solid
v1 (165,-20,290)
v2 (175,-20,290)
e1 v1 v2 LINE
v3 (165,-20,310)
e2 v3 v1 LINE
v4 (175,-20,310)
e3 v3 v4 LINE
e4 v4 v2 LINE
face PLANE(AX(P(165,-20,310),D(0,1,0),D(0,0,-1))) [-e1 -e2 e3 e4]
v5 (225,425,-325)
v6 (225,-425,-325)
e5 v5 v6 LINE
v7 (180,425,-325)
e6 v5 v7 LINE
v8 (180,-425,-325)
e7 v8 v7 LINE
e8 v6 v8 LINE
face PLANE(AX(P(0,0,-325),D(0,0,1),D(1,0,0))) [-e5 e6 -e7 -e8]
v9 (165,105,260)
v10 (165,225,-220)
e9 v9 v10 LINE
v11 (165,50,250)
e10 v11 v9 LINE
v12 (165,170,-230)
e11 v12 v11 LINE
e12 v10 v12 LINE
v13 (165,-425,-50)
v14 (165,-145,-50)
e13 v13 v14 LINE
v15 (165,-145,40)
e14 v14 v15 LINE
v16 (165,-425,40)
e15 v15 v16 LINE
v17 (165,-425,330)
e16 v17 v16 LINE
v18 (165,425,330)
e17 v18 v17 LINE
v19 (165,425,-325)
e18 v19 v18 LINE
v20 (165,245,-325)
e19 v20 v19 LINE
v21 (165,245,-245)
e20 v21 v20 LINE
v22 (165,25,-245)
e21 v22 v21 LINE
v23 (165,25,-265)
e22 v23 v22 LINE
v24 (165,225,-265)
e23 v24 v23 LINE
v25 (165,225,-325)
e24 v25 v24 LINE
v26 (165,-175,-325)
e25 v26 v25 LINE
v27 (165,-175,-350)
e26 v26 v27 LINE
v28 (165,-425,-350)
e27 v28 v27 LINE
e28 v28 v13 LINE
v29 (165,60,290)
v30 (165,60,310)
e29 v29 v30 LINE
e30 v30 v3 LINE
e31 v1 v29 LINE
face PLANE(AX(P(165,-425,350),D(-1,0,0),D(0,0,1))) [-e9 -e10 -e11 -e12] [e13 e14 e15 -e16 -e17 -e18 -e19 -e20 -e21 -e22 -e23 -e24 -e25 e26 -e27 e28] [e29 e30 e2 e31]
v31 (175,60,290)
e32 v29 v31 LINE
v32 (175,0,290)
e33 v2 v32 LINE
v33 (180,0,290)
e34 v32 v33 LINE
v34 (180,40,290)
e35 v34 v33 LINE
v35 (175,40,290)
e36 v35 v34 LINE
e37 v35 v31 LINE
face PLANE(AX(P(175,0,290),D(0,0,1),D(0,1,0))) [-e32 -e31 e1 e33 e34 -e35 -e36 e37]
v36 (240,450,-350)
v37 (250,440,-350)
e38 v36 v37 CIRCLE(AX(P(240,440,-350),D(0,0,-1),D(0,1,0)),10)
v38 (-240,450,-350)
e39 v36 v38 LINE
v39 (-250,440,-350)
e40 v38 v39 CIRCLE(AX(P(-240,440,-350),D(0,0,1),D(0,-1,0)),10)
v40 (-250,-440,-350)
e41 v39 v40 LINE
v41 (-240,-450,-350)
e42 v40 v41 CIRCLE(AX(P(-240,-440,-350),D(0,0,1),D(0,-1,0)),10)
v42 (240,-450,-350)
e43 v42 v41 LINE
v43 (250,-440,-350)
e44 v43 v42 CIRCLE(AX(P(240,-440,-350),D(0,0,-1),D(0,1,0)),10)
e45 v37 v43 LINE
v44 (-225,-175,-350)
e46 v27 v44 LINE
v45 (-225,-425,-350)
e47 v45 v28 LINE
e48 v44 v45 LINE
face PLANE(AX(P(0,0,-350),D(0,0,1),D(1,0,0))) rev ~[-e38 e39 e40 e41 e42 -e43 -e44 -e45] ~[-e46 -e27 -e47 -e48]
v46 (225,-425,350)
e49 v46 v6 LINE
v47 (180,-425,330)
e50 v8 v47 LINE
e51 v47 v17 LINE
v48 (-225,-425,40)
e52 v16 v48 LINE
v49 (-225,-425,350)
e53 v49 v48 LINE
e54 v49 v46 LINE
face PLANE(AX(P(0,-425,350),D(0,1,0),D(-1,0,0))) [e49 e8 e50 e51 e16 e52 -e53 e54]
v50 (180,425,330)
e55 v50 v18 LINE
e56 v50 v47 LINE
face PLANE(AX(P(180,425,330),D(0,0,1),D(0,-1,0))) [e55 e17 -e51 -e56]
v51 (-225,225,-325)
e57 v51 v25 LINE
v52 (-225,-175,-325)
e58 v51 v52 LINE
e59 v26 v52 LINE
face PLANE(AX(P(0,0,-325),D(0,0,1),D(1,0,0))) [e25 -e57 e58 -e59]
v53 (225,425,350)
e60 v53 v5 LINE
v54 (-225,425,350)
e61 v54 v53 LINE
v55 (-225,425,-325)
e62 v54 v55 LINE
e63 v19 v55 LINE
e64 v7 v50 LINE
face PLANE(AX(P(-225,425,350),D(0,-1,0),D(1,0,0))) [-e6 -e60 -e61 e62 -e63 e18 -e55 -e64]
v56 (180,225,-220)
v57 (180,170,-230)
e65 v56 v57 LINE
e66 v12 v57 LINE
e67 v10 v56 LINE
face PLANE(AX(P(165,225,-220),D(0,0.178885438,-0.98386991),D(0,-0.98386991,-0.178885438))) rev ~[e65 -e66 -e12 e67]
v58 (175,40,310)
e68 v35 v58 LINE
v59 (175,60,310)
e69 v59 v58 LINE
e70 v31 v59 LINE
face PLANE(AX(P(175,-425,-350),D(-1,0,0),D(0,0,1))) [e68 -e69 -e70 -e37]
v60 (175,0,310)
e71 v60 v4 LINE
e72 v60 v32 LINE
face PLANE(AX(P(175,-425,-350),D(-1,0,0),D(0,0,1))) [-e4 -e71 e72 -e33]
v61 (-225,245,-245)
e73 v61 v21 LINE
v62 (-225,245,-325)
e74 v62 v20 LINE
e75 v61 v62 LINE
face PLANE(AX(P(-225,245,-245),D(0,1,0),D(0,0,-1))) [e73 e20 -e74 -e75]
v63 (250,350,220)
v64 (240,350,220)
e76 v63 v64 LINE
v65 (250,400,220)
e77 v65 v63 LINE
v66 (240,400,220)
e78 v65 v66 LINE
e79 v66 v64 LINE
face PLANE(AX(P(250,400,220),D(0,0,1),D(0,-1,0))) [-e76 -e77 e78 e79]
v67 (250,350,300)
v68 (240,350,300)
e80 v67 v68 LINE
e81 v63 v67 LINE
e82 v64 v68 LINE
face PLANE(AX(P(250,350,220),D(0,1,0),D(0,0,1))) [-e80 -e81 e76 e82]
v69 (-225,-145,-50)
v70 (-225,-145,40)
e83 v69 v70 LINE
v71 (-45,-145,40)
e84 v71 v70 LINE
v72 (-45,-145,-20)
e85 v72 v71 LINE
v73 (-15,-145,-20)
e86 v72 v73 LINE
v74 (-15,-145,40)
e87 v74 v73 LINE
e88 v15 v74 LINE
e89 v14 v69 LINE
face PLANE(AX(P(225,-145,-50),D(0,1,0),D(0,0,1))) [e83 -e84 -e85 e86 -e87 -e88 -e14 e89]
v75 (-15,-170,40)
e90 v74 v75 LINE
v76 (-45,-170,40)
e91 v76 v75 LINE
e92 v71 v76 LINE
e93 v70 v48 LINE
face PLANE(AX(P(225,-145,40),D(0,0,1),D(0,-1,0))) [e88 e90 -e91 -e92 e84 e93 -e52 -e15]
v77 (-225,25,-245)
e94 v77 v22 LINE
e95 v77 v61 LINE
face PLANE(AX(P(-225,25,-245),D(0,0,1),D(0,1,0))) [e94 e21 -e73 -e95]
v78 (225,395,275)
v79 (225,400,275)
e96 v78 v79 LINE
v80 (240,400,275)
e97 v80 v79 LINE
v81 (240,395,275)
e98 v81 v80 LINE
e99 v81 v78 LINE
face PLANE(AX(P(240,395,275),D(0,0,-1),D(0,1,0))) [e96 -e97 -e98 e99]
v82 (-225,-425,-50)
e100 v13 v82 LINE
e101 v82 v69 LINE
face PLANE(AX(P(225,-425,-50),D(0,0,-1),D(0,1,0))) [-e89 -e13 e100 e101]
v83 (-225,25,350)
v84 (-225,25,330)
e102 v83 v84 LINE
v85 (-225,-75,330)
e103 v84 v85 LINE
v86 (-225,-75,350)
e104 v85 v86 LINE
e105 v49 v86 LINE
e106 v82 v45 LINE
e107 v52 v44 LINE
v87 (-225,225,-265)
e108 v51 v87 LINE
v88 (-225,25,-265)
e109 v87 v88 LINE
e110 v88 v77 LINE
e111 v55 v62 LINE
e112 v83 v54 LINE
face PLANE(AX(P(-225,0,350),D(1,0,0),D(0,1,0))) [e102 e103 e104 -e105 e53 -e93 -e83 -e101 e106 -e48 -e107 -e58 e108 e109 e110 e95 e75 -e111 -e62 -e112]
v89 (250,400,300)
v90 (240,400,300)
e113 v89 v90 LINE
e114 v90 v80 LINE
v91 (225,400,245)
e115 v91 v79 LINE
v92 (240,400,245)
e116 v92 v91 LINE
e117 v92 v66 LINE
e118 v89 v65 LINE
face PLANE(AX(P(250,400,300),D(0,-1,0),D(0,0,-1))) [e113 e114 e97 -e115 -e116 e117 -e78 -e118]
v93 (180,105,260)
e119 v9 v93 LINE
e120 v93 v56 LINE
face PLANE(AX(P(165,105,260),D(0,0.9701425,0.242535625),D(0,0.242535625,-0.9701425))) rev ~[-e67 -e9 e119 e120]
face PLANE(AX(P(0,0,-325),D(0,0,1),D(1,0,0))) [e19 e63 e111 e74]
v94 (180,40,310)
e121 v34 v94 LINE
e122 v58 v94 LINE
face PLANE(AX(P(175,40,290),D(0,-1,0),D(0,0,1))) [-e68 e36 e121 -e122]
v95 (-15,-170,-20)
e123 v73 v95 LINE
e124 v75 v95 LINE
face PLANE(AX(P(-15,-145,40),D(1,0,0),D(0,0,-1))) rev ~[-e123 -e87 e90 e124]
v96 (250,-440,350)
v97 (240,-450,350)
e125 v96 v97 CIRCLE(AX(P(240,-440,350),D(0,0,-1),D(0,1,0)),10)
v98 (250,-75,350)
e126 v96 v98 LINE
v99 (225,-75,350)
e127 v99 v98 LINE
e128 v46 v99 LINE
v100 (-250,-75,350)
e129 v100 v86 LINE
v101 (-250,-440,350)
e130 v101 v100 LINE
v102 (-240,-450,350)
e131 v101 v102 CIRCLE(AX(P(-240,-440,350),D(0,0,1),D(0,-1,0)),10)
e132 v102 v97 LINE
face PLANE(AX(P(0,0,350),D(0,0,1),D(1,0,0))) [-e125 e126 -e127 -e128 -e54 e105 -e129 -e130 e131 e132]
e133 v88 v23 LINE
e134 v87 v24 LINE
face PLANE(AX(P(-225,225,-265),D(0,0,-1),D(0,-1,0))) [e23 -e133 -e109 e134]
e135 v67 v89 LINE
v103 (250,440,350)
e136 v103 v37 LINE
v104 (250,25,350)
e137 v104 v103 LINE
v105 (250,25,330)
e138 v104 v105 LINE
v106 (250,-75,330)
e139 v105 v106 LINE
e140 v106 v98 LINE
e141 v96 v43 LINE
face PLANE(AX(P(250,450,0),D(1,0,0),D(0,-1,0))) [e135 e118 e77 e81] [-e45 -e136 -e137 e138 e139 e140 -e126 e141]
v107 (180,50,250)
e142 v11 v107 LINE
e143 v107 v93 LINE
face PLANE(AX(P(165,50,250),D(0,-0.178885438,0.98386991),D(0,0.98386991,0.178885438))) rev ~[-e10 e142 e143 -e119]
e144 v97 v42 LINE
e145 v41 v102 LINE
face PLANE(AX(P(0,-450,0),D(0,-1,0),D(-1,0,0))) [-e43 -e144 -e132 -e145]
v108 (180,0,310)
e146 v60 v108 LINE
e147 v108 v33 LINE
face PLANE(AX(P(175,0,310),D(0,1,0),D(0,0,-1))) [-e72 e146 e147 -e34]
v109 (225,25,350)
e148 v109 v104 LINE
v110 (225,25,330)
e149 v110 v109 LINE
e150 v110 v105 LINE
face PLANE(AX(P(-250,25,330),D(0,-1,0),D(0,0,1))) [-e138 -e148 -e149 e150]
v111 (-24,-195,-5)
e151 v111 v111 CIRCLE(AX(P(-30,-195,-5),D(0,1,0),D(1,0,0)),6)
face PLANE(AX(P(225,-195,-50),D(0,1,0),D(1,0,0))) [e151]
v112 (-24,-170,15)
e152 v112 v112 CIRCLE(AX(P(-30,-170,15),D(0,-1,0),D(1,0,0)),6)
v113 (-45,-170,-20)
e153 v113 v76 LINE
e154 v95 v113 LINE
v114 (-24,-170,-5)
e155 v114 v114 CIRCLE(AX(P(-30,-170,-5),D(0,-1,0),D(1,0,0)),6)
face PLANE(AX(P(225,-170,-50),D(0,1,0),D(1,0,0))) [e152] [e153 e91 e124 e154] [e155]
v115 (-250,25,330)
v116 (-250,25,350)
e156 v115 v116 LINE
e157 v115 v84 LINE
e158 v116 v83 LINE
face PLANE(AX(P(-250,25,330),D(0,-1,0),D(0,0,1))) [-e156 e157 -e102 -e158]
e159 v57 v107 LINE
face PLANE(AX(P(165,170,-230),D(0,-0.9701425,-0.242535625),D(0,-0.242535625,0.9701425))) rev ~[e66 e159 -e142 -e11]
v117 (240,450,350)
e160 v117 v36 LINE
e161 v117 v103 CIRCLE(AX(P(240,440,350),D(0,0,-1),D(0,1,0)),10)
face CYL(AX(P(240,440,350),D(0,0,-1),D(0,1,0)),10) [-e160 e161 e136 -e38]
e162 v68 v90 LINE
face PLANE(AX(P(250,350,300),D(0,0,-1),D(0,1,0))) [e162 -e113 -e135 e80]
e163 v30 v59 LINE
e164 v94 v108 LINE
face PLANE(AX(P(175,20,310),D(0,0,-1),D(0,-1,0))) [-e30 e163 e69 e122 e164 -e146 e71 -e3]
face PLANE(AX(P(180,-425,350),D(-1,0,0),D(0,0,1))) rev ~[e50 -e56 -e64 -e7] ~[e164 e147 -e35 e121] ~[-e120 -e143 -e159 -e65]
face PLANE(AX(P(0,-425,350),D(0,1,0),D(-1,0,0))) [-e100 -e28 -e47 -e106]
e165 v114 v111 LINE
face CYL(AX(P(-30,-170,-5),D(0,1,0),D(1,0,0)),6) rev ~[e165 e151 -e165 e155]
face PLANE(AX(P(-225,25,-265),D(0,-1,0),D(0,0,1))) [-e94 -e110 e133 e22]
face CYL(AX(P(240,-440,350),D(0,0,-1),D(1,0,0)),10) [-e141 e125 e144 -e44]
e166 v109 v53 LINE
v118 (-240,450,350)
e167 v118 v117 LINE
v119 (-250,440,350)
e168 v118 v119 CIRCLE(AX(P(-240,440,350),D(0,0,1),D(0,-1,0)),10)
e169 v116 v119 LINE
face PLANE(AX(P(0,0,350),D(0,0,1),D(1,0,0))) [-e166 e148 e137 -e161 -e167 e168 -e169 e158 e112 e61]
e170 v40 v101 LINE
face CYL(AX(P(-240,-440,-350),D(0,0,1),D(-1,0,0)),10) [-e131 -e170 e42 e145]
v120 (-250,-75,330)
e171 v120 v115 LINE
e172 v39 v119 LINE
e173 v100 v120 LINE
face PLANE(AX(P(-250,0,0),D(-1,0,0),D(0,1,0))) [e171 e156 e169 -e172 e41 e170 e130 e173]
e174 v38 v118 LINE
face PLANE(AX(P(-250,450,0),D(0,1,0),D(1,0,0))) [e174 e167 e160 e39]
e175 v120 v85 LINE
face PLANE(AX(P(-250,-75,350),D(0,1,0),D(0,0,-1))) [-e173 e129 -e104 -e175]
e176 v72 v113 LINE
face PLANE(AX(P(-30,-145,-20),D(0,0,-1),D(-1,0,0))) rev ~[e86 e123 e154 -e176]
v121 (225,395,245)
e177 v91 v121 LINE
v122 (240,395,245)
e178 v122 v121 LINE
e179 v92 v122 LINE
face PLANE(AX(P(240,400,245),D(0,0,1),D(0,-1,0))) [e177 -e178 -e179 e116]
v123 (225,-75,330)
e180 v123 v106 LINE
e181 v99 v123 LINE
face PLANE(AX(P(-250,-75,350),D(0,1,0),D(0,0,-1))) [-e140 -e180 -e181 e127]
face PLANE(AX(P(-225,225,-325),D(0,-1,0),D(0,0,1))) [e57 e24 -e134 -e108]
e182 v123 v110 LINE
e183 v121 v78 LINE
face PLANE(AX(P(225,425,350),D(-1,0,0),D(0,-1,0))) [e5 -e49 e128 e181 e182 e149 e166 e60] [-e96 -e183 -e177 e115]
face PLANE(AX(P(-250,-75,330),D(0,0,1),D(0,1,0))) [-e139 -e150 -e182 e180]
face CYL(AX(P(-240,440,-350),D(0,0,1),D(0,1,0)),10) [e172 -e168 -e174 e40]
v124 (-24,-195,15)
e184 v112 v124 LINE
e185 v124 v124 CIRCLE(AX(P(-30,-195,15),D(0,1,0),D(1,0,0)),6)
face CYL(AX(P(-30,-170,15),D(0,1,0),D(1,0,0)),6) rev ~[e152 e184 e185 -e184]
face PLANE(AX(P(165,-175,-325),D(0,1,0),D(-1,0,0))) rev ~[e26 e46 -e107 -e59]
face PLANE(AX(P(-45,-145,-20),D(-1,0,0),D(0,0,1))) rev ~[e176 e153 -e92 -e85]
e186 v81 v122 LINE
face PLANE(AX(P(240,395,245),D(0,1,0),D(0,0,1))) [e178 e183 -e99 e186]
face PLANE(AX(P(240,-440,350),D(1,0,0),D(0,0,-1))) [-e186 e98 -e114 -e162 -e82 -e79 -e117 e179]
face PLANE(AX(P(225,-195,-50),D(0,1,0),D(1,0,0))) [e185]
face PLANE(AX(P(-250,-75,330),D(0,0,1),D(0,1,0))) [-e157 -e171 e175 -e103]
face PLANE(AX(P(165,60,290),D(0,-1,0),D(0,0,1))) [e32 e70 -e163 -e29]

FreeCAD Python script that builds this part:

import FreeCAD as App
import Part
import Sketcher
from FreeCAD import Vector


def edges_at(feature, points):
    """Names of the edges that pass closest to the given points."""
    edges = feature.Shape.Edges
    near = lambda p: min(range(len(edges)), key=lambda i: edges[i].distToShape(Part.Vertex(*p))[0])
    return sorted({f"Edge{near(p) + 1}" for p in points})

doc = App.newDocument("Part")
body = doc.addObject("PartDesign::Body", "Body")

# Sketch on XY plane
sketch1 = body.newObject("Sketcher::SketchObject", "Sketch")
sketch1.AttachmentSupport = (doc.getObject("XY_Plane"), [""])
sketch1.MapMode = "FlatFace"
sketch1.addGeometry([
    Part.LineSegment(Vector(-250, 450, 0), Vector(-250, -450, 0)),
    Part.LineSegment(Vector(-250, -450, 0), Vector(250, -450, 0)),
    Part.LineSegment(Vector(250, -450, 0), Vector(250, 450, 0)),
    Part.LineSegment(Vector(250, 450, 0), Vector(-250, 450, 0)),
], False)
sketch1.addConstraint([
    Sketcher.Constraint("Coincident", 0, 2, 1, 1),
    Sketcher.Constraint("Coincident", 1, 2, 2, 1),
    Sketcher.Constraint("Coincident", 2, 2, 3, 1),
    Sketcher.Constraint("Coincident", 3, 2, 0, 1),
    Sketcher.Constraint("Vertical", 0),
    Sketcher.Constraint("Horizontal", 1),
    Sketcher.Constraint("Vertical", 2),
    Sketcher.Constraint("Horizontal", 3),
    Sketcher.Constraint("Symmetric", 0, 2, 2, 2, -1, 1),
    Sketcher.Constraint("DistanceX", 1, 1, 1, 2, 500.0),
    Sketcher.Constraint("DistanceY", 0, 2, 0, 1, 900.0),
])
pad1 = body.newObject("PartDesign::Pad", "Pad")
pad1.Profile = sketch1
pad1.Length = 700
pad1.Midplane = True

# Sketch on XY plane
sketch2 = body.newObject("Sketcher::SketchObject", "Sketch001")
sketch2.AttachmentSupport = (doc.getObject("XY_Plane"), [""])
sketch2.MapMode = "FlatFace"
sketch2.AttachmentOffset = App.Placement(Vector(0, 0, 350), App.Rotation())
sketch2.addGeometry([
    Part.LineSegment(Vector(-225, 425, 0), Vector(-225, -425, 0)),
    Part.LineSegment(Vector(-225, -425, 0), Vector(225, -425, 0)),
    Part.LineSegment(Vector(225, -425, 0), Vector(225, 425, 0)),
    Part.LineSegment(Vector(225, 425, 0), Vector(-225, 425, 0)),
], False)
sketch2.addConstraint([
    Sketcher.Constraint("Coincident", 0, 2, 1, 1),
    Sketcher.Constraint("Coincident", 1, 2, 2, 1),
    Sketcher.Constraint("Coincident", 2, 2, 3, 1),
    Sketcher.Constraint("Coincident", 3, 2, 0, 1),
    Sketcher.Constraint("Vertical", 0),
    Sketcher.Constraint("Horizontal", 1),
    Sketcher.Constraint("Vertical", 2),
    Sketcher.Constraint("Horizontal", 3),
    Sketcher.Constraint("Symmetric", 0, 2, 2, 2, -1, 1),
    Sketcher.Constraint("DistanceX", 1, 1, 1, 2, 450.0),
    Sketcher.Constraint("DistanceY", 0, 2, 0, 1, 850.0),
])
pocket1 = body.newObject("PartDesign::Pocket", "Pocket")
pocket1.Profile = sketch2
pocket1.Length = 675

# Sketch on XY plane
sketch3 = body.newObject("Sketcher::SketchObject", "Sketch002")
sketch3.AttachmentSupport = (doc.getObject("XY_Plane"), [""])
sketch3.MapMode = "FlatFace"
sketch3.AttachmentOffset = App.Placement(Vector(0, 0, -325), App.Rotation())
sketch3.addGeometry([
    Part.LineSegment(Vector(-225, -175, 0), Vector(-225, -425, 0)),
    Part.LineSegment(Vector(-225, -425, 0), Vector(165, -425, 0)),
    Part.LineSegment(Vector(165, -425, 0), Vector(165, -175, 0)),
    Part.LineSegment(Vector(165, -175, 0), Vector(-225, -175, 0)),
], False)
sketch3.addConstraint([
    Sketcher.Constraint("Coincident", 0, 2, 1, 1),
    Sketcher.Constraint("Coincident", 1, 2, 2, 1),
    Sketcher.Constraint("Coincident", 2, 2, 3, 1),
    Sketcher.Constraint("Coincident", 3, 2, 0, 1),
    Sketcher.Constraint("Vertical", 0),
    Sketcher.Constraint("Horizontal", 1),
    Sketcher.Constraint("Vertical", 2),
    Sketcher.Constraint("Horizontal", 3),
    Sketcher.Constraint("DistanceX", 1, 1, 1, 2, 390.0),
    Sketcher.Constraint("DistanceY", 0, 2, 0, 1, 250.0),
    Sketcher.Constraint("DistanceX", 0, 2, -1, 1, 225.0),
    Sketcher.Constraint("DistanceY", 0, 2, -1, 1, 425.0),
])
pocket2 = body.newObject("PartDesign::Pocket", "Pocket001")
pocket2.Profile = sketch3
pocket2.Type = "ThroughAll"

# Sketch on YZ plane
sketch4 = body.newObject("Sketcher::SketchObject", "Sketch003")
sketch4.AttachmentSupport = (doc.getObject("YZ_Plane"), [""])
sketch4.MapMode = "FlatFace"
sketch4.AttachmentOffset = App.Placement(Vector(0, 0, 225), App.Rotation())
sketch4.addGeometry([
    Part.LineSegment(Vector(-145, 40, 0), Vector(-145, -50, 0)),
    Part.LineSegment(Vector(-145, -50, 0), Vector(-425, -50, 0)),
    Part.LineSegment(Vector(-425, -50, 0), Vector(-425, 40, 0)),
    Part.LineSegment(Vector(-425, 40, 0), Vector(-145, 40, 0)),
], False)
sketch4.addConstraint([
    Sketcher.Constraint("Coincident", 0, 2, 1, 1),
    Sketcher.Constraint("Coincident", 1, 2, 2, 1),
    Sketcher.Constraint("Coincident", 2, 2, 3, 1),
    Sketcher.Constraint("Coincident", 3, 2, 0, 1),
    Sketcher.Constraint("Vertical", 0),
    Sketcher.Constraint("Horizontal", 1),
    Sketcher.Constraint("Vertical", 2),
    Sketcher.Constraint("Horizontal", 3),
    Sketcher.Constraint("DistanceX", 1, 2, 1, 1, 280.0),
    Sketcher.Constraint("DistanceY", 0, 2, 0, 1, 90.0),
    Sketcher.Constraint("DistanceX", 0, 2, -1, 1, 145.0),
    Sketcher.Constraint("DistanceY", 0, 2, -1, 1, 50.0),
])
pad2 = body.newObject("PartDesign::Pad", "Pad001")
pad2.Profile = sketch4
pad2.Length = 450
pad2.Reversed = True

# Sketch on YZ plane
sketch5 = body.newObject("Sketcher::SketchObject", "Sketch004")
sketch5.AttachmentSupport = (doc.getObject("YZ_Plane"), [""])
sketch5.MapMode = "FlatFace"
sketch5.AttachmentOffset = App.Placement(Vector(0, 0, 180), App.Rotation())
sketch5.addGeometry([
    Part.LineSegment(Vector(-425, -325, 0), Vector(-425, 330, 0)),
    Part.LineSegment(Vector(-425, 330, 0), Vector(425, 330, 0)),
    Part.LineSegment(Vector(425, 330, 0), Vector(425, -325, 0)),
    Part.LineSegment(Vector(425, -325, 0), Vector(-425, -325, 0)),
], False)
sketch5.addConstraint([
    Sketcher.Constraint("Coincident", 0, 2, 1, 1),
    Sketcher.Constraint("Coincident", 1, 2, 2, 1),
    Sketcher.Constraint("Coincident", 2, 2, 3, 1),
    Sketcher.Constraint("Coincident", 3, 2, 0, 1),
    Sketcher.Constraint("Vertical", 0),
    Sketcher.Constraint("Horizontal", 1),
    Sketcher.Constraint("Vertical", 2),
    Sketcher.Constraint("Horizontal", 3),
    Sketcher.Constraint("DistanceX", 1, 1, 1, 2, 850.0),
    Sketcher.Constraint("DistanceY", 0, 1, 0, 2, 655.0),
    Sketcher.Constraint("DistanceX", 0, 2, -1, 1, 425.0),
    Sketcher.Constraint("DistanceY", -1, 1, 0, 2, 330.0),
])
pad3 = body.newObject("PartDesign::Pad", "Pad002")
pad3.Profile = sketch5
pad3.Length = 15
pad3.Reversed = True

# Sketch on XY plane
sketch6 = body.newObject("Sketcher::SketchObject", "Sketch005")
sketch6.AttachmentSupport = (doc.getObject("XY_Plane"), [""])
sketch6.MapMode = "FlatFace"
sketch6.AttachmentOffset = App.Placement(Vector(0, 0, 40), App.Rotation())
sketch6.addGeometry([
    Part.LineSegment(Vector(225, -425, 0), Vector(225, -145, 0)),
    Part.LineSegment(Vector(225, -145, 0), Vector(180, -145, 0)),
    Part.LineSegment(Vector(180, -145, 0), Vector(180, -425, 0)),
    Part.LineSegment(Vector(180, -425, 0), Vector(225, -425, 0)),
], False)
sketch6.addConstraint([
    Sketcher.Constraint("Coincident", 0, 2, 1, 1),
    Sketcher.Constraint("Coincident", 1, 2, 2, 1),
    Sketcher.Constraint("Coincident", 2, 2, 3, 1),
    Sketcher.Constraint("Coincident", 3, 2, 0, 1),
    Sketcher.Constraint("Vertical", 0),
    Sketcher.Constraint("Horizontal", 1),
    Sketcher.Constraint("Vertical", 2),
    Sketcher.Constraint("Horizontal", 3),
    Sketcher.Constraint("DistanceX", 1, 2, 1, 1, 45.0),
    Sketcher.Constraint("DistanceY", 0, 1, 0, 2, 280.0),
    Sketcher.Constraint("DistanceX", -1, 1, 0, 2, 225.0),
    Sketcher.Constraint("DistanceY", 0, 2, -1, 1, 145.0),
])
pocket3 = body.newObject("PartDesign::Pocket", "Pocket002")
pocket3.Profile = sketch6
pocket3.Length = 90

# Sketch on XZ plane
sketch7 = body.newObject("Sketcher::SketchObject", "Sketch006")
sketch7.AttachmentSupport = (doc.getObject("XZ_Plane"), [""])
sketch7.MapMode = "FlatFace"
sketch7.AttachmentOffset = App.Placement(Vector(0, 0, 145), App.Rotation())
sketch7.addGeometry([
    Part.LineSegment(Vector(-45, -20, 0), Vector(-45, 40, 0)),
    Part.LineSegment(Vector(-45, 40, 0), Vector(-15, 40, 0)),
    Part.LineSegment(Vector(-15, 40, 0), Vector(-15, -20, 0)),
    Part.LineSegment(Vector(-15, -20, 0), Vector(-45, -20, 0)),
], False)
sketch7.addConstraint([
    Sketcher.Constraint("Coincident", 0, 2, 1, 1),
    Sketcher.Constraint("Coincident", 1, 2, 2, 1),
    Sketcher.Constraint("Coincident", 2, 2, 3, 1),
    Sketcher.Constraint("Coincident", 3, 2, 0, 1),
    Sketcher.Constraint("Vertical", 0),
    Sketcher.Constraint("Horizontal", 1),
    Sketcher.Constraint("Vertical", 2),
    Sketcher.Constraint("Horizontal", 3),
    Sketcher.Constraint("DistanceX", 1, 1, 1, 2, 30.0),
    Sketcher.Constraint("DistanceY", 0, 1, 0, 2, 60.0),
    Sketcher.Constraint("DistanceX", 0, 2, -1, 1, 45.0),
    Sketcher.Constraint("DistanceY", -1, 1, 0, 2, 40.0),
])
pocket4 = body.newObject("PartDesign::Pocket", "Pocket003")
pocket4.Profile = sketch7
pocket4.Length = 25
pocket4.Reversed = True

# Sketch on XZ plane
sketch8 = body.newObject("Sketcher::SketchObject", "Sketch007")
sketch8.AttachmentSupport = (doc.getObject("XZ_Plane"), [""])
sketch8.MapMode = "FlatFace"
sketch8.AttachmentOffset = App.Placement(Vector(0, 0, 170), App.Rotation())
sketch8.addGeometry([
    Part.Circle(Vector(-30, -5, 0), Vector(0, 0, 1), 6),
    Part.Circle(Vector(-30, 15, 0), Vector(0, 0, 1), 6),
], False)
sketch8.addConstraint([
    Sketcher.Constraint("Equal", 0, 1),
    Sketcher.Constraint("Vertical", 0, 3, 1, 3),
    Sketcher.Constraint("Diameter", 0, 12.0),
    Sketcher.Constraint("DistanceY", 0, 3, 1, 3, 20.0),
    Sketcher.Constraint("DistanceX", 0, 3, -1, 1, 30.0),
    Sketcher.Constraint("DistanceY", 0, 3, -1, 1, 5.0),
])
pocket5 = body.newObject("PartDesign::Pocket", "Pocket004")
pocket5.Profile = sketch8
pocket5.Length = 25
pocket5.Reversed = True
doc.recompute()

fillet = body.newObject("PartDesign::Fillet", "Fillet")
fillet.Base = (pocket5, edges_at(pocket5, [
    (-250, 450, 0),
    (250, 450, 0),
    (-250, -450, 0),
    (250, -450, 0),
]))
fillet.Radius = 10

# Sketch on YZ plane
sketch9 = body.newObject("Sketcher::SketchObject", "Sketch008")
sketch9.AttachmentSupport = (doc.getObject("YZ_Plane"), [""])
sketch9.MapMode = "FlatFace"
sketch9.AttachmentOffset = App.Placement(Vector(0, 0, 165), App.Rotation())
sketch9.addGeometry([
    Part.LineSegment(Vector(60, 310, 0), Vector(60, 290, 0)),
    Part.LineSegment(Vector(60, 290, 0), Vector(-20, 290, 0)),
    Part.LineSegment(Vector(-20, 290, 0), Vector(-20, 310, 0)),
    Part.LineSegment(Vector(-20, 310, 0), Vector(60, 310, 0)),
], False)
sketch9.addConstraint([
    Sketcher.Constraint("Coincident", 0, 2, 1, 1),
    Sketcher.Constraint("Coincident", 1, 2, 2, 1),
    Sketcher.Constraint("Coincident", 2, 2, 3, 1),
    Sketcher.Constraint("Coincident", 3, 2, 0, 1),
    Sketcher.Constraint("Vertical", 0),
    Sketcher.Constraint("Horizontal", 1),
    Sketcher.Constraint("Vertical", 2),
    Sketcher.Constraint("Horizontal", 3),
    Sketcher.Constraint("DistanceX", 1, 2, 1, 1, 80.0),
    Sketcher.Constraint("DistanceY", 0, 2, 0, 1, 20.0),
    Sketcher.Constraint("DistanceX", 1, 2, -1, 1, 20.0),
    Sketcher.Constraint("DistanceY", -1, 1, 0, 2, 290.0),
])
pocket6 = body.newObject("PartDesign::Pocket", "Pocket005")
pocket6.Profile = sketch9
pocket6.Length = 10
pocket6.Reversed = True

# Sketch on YZ plane
sketch10 = body.newObject("Sketcher::SketchObject", "Sketch009")
sketch10.AttachmentSupport = (doc.getObject("YZ_Plane"), [""])
sketch10.MapMode = "FlatFace"
sketch10.AttachmentOffset = App.Placement(Vector(0, 0, 175), App.Rotation())
sketch10.addGeometry([
    Part.LineSegment(Vector(0, 290, 0), Vector(0, 310, 0)),
    Part.LineSegment(Vector(0, 310, 0), Vector(40, 310, 0)),
    Part.LineSegment(Vector(40, 310, 0), Vector(40, 290, 0)),
    Part.LineSegment(Vector(40, 290, 0), Vector(0, 290, 0)),
], False)
sketch10.addConstraint([
    Sketcher.Constraint("Coincident", 0, 2, 1, 1),
    Sketcher.Constraint("Coincident", 1, 2, 2, 1),
    Sketcher.Constraint("Coincident", 2, 2, 3, 1),
    Sketcher.Constraint("Coincident", 3, 2, 0, 1),
    Sketcher.Constraint("Vertical", 0),
    Sketcher.Constraint("Horizontal", 1),
    Sketcher.Constraint("Vertical", 2),
    Sketcher.Constraint("Horizontal", 3),
    Sketcher.Constraint("PointOnObject", 0, 2, -2),
    Sketcher.Constraint("DistanceX", 1, 1, 1, 2, 40.0),
    Sketcher.Constraint("DistanceY", 0, 1, 0, 2, 20.0),
    Sketcher.Constraint("DistanceY", -1, 1, 0, 2, 310.0),
])
pocket7 = body.newObject("PartDesign::Pocket", "Pocket006")
pocket7.Profile = sketch10
pocket7.Length = 5
pocket7.Reversed = True

# Sketch on YZ plane
sketch11 = body.newObject("Sketcher::SketchObject", "Sketch010")
sketch11.AttachmentSupport = (doc.getObject("YZ_Plane"), [""])
sketch11.MapMode = "FlatFace"
sketch11.AttachmentOffset = App.Placement(Vector(0, 0, 165), App.Rotation())
sketch11.addGeometry([
    Part.LineSegment(Vector(105, 260, 0), Vector(225, -220, 0)),
    Part.LineSegment(Vector(225, -220, 0), Vector(170, -230, 0)),
    Part.LineSegment(Vector(170, -230, 0), Vector(50, 250, 0)),
    Part.LineSegment(Vector(50, 250, 0), Vector(105, 260, 0)),
], False)
sketch11.addConstraint([
    Sketcher.Constraint("Coincident", 0, 2, 1, 1),
    Sketcher.Constraint("Coincident", 1, 2, 2, 1),
    Sketcher.Constraint("Coincident", 2, 2, 3, 1),
    Sketcher.Constraint("Coincident", 3, 2, 0, 1),
    Sketcher.Constraint("Parallel", 0, 2),
    Sketcher.Constraint("Parallel", 1, 3),
    Sketcher.Constraint("DistanceX", -1, 1, 0, 2, 225.0),
    Sketcher.Constraint("DistanceX", 1, 2, 0, 2, 55.0),
    Sketcher.Constraint("DistanceX", 2, 2, 1, 2, 120.0),
    Sketcher.Constraint("DistanceY", 1, 2, 2, 2, 480.0),
    Sketcher.Constraint("DistanceY", 0, 2, -1, 1, 220.0),
    Sketcher.Constraint("DistanceY", 1, 2, -1, 1, 230.0),
])
pocket8 = body.newObject("PartDesign::Pocket", "Pocket007")
pocket8.Profile = sketch11
pocket8.Length = 15
pocket8.Reversed = True

# Sketch on YZ plane
sketch12 = body.newObject("Sketcher::SketchObject", "Sketch011")
sketch12.AttachmentSupport = (doc.getObject("YZ_Plane"), [""])
sketch12.MapMode = "FlatFace"
sketch12.AttachmentOffset = App.Placement(Vector(0, 0, 250), App.Rotation())
sketch12.addGeometry([
    Part.LineSegment(Vector(400, 220, 0), Vector(400, 300, 0)),
    Part.LineSegment(Vector(400, 300, 0), Vector(350, 300, 0)),
    Part.LineSegment(Vector(350, 300, 0), Vector(350, 220, 0)),
    Part.LineSegment(Vector(350, 220, 0), Vector(400, 220, 0)),
], False)
sketch12.addConstraint([
    Sketcher.Constraint("Coincident", 0, 2, 1, 1),
    Sketcher.Constraint("Coincident", 1, 2, 2, 1),
    Sketcher.Constraint("Coincident", 2, 2, 3, 1),
    Sketcher.Constraint("Coincident", 3, 2, 0, 1),
    Sketcher.Constraint("Vertical", 0),
    Sketcher.Constraint("Horizontal", 1),
    Sketcher.Constraint("Vertical", 2),
    Sketcher.Constraint("Horizontal", 3),
    Sketcher.Constraint("DistanceX", 1, 2, 1, 1, 50.0),
    Sketcher.Constraint("DistanceY", 0, 1, 0, 2, 80.0),
    Sketcher.Constraint("DistanceX", -1, 1, 0, 2, 400.0),
    Sketcher.Constraint("DistanceY", -1, 1, 0, 2, 300.0),
])
pocket9 = body.newObject("PartDesign::Pocket", "Pocket008")
pocket9.Profile = sketch12
pocket9.Length = 10

# Sketch on YZ plane
sketch13 = body.newObject("Sketcher::SketchObject", "Sketch012")
sketch13.AttachmentSupport = (doc.getObject("YZ_Plane"), [""])
sketch13.MapMode = "FlatFace"
sketch13.AttachmentOffset = App.Placement(Vector(0, 0, 240), App.Rotation())
sketch13.addGeometry([
    Part.LineSegment(Vector(400, 245, 0), Vector(400, 275, 0)),
    Part.LineSegment(Vector(400, 275, 0), Vector(395, 275, 0)),
    Part.LineSegment(Vector(395, 275, 0), Vector(395, 245, 0)),
    Part.LineSegment(Vector(395, 245, 0), Vector(400, 245, 0)),
], False)
sketch13.addConstraint([
    Sketcher.Constraint("Coincident", 0, 2, 1, 1),
    Sketcher.Constraint("Coincident", 1, 2, 2, 1),
    Sketcher.Constraint("Coincident", 2, 2, 3, 1),
    Sketcher.Constraint("Coincident", 3, 2, 0, 1),
    Sketcher.Constraint("Vertical", 0),
    Sketcher.Constraint("Horizontal", 1),
    Sketcher.Constraint("Vertical", 2),
    Sketcher.Constraint("Horizontal", 3),
    Sketcher.Constraint("DistanceX", 1, 2, 1, 1, 5.0),
    Sketcher.Constraint("DistanceY", 0, 1, 0, 2, 30.0),
    Sketcher.Constraint("DistanceX", -1, 1, 0, 2, 400.0),
    Sketcher.Constraint("DistanceY", -1, 1, 0, 2, 275.0),
])
pocket10 = body.newObject("PartDesign::Pocket", "Pocket009")
pocket10.Profile = sketch13
pocket10.Length = 15

# Sketch on YZ plane
sketch14 = body.newObject("Sketcher::SketchObject", "Sketch013")
sketch14.AttachmentSupport = (doc.getObject("YZ_Plane"), [""])
sketch14.MapMode = "FlatFace"
sketch14.AttachmentOffset = App.Placement(Vector(0, 0, -225), App.Rotation())
sketch14.addGeometry([
    Part.LineSegment(Vector(225, -265, 0), Vector(225, -325, 0)),  # 0
    Part.LineSegment(Vector(225, -325, 0), Vector(245, -325, 0)),  # 1
    Part.LineSegment(Vector(245, -325, 0), Vector(245, -245, 0)),  # 2
    Part.LineSegment(Vector(245, -245, 0), Vector(25, -245, 0)),  # 3
    Part.LineSegment(Vector(25, -245, 0), Vector(25, -265, 0)),  # 4
    Part.LineSegment(Vector(25, -265, 0), Vector(225, -265, 0)),  # 5
], False)
sketch14.addConstraint([
    Sketcher.Constraint("Coincident", 0, 2, 1, 1),
    Sketcher.Constraint("Coincident", 1, 2, 2, 1),
    Sketcher.Constraint("Coincident", 2, 2, 3, 1),
    Sketcher.Constraint("Coincident", 3, 2, 4, 1),
    Sketcher.Constraint("Coincident", 4, 2, 5, 1),
    Sketcher.Constraint("Coincident", 5, 2, 0, 1),
    Sketcher.Constraint("Vertical", 0),
    Sketcher.Constraint("Horizontal", 1),
    Sketcher.Constraint("Vertical", 2),
    Sketcher.Constraint("Horizontal", 3),
    Sketcher.Constraint("Vertical", 4),
    Sketcher.Constraint("Horizontal", 5),
    Sketcher.Constraint("Equal", 1, 4),
    Sketcher.Constraint("DistanceX", 1, 1, 1, 2, 20.0),
    Sketcher.Constraint("DistanceX", 5, 1, 5, 2, 200.0),
    Sketcher.Constraint("DistanceY", 2, 1, 2, 2, 80.0),
    Sketcher.Constraint("DistanceX", -1, 1, 0, 2, 225.0),
    Sketcher.Constraint("DistanceY", 0, 2, -1, 1, 325.0),
])
pad4 = body.newObject("PartDesign::Pad", "Pad003")
pad4.Profile = sketch14
pad4.Length = 390

# Sketch on YZ plane
sketch15 = body.newObject("Sketcher::SketchObject", "Sketch014")
sketch15.AttachmentSupport = (doc.getObject("YZ_Plane"), [""])
sketch15.MapMode = "FlatFace"
sketch15.AttachmentOffset = App.Placement(Vector(0, 0, -250), App.Rotation())
sketch15.addGeometry([
    Part.LineSegment(Vector(25, 350, 0), Vector(25, 330, 0)),
    Part.LineSegment(Vector(25, 330, 0), Vector(-75, 330, 0)),
    Part.LineSegment(Vector(-75, 330, 0), Vector(-75, 350, 0)),
    Part.LineSegment(Vector(-75, 350, 0), Vector(25, 350, 0)),
], False)
sketch15.addConstraint([
    Sketcher.Constraint("Coincident", 0, 2, 1, 1),
    Sketcher.Constraint("Coincident", 1, 2, 2, 1),
    Sketcher.Constraint("Coincident", 2, 2, 3, 1),
    Sketcher.Constraint("Coincident", 3, 2, 0, 1),
    Sketcher.Constraint("Vertical", 0),
    Sketcher.Constraint("Horizontal", 1),
    Sketcher.Constraint("Vertical", 2),
    Sketcher.Constraint("Horizontal", 3),
    Sketcher.Constraint("DistanceX", 1, 2, 1, 1, 100.0),
    Sketcher.Constraint("DistanceY", 0, 2, 0, 1, 20.0),
    Sketcher.Constraint("DistanceX", -1, 1, 0, 2, 25.0),
    Sketcher.Constraint("DistanceY", -1, 1, 0, 2, 330.0),
])
pocket11 = body.newObject("PartDesign::Pocket", "Pocket010")
pocket11.Profile = sketch15
pocket11.Type = "ThroughAll"
pocket11.Reversed = True

doc.recompute()
